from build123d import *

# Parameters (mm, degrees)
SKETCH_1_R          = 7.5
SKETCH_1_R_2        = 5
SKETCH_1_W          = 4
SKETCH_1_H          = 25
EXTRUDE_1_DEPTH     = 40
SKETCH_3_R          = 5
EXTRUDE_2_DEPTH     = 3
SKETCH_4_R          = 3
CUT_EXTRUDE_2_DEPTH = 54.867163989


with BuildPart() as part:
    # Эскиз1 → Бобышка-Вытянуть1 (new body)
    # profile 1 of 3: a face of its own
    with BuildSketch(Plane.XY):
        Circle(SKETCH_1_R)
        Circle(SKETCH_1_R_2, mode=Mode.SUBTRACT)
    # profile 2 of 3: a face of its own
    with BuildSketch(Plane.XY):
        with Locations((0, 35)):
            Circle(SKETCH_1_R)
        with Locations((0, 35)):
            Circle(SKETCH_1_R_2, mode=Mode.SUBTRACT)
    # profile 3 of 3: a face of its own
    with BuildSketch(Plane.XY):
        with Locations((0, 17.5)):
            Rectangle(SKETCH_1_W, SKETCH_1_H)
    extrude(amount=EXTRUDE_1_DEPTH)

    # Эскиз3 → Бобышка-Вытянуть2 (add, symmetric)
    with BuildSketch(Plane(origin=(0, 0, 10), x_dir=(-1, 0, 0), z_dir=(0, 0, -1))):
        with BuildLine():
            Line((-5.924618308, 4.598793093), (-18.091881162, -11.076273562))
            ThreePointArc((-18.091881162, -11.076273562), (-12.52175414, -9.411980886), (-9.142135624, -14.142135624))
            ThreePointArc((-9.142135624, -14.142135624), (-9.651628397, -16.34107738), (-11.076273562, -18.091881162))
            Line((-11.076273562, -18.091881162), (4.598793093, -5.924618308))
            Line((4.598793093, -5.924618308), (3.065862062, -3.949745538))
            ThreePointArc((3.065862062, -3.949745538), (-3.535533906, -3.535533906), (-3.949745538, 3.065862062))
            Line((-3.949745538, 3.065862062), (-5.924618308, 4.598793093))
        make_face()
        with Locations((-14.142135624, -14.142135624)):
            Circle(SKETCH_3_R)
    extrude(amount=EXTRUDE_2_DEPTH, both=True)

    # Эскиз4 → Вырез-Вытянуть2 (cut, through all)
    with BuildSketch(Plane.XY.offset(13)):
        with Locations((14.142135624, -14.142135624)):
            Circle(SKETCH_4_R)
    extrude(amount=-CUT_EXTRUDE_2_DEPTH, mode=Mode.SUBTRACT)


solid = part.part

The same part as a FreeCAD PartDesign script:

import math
import FreeCAD as App
import Part
import Sketcher

V = App.Vector
Q = App.Units.Quantity

doc = App.newDocument("Part")
body = doc.addObject("PartDesign::Body", "Body")

sketch1 = body.newObject("Sketcher::SketchObject", "Sketch")
sketch1.AttachmentSupport = (doc.getObject("XY_Plane"), [""])
sketch1.MapMode = "FlatFace"
sketch1.addGeometry([
    Part.ArcOfCircle(Part.Circle(V(0, 0, 0), V(0, 0, 1), 7.5), math.radians(105.46601), math.radians(434.53399)),
    Part.LineSegment(V(2, 7.228416, 0), V(2, 27.771584, 0)),
    Part.ArcOfCircle(Part.Circle(V(0, 35, 0), V(0, 0, 1), 7.5), math.radians(-74.53399), math.radians(254.53399)),
    Part.LineSegment(V(-2, 27.771584, 0), V(-2, 7.228416, 0)),
    Part.Circle(V(0, 0, 0), V(0, 0, 1), 5),
    Part.Circle(V(0, 35, 0), V(0, 0, 1), 5),
], False)
sketch1.addConstraint([
    Sketcher.Constraint("Coincident", 0, 2, 1, 1),
    Sketcher.Constraint("Coincident", 1, 2, 2, 1),
    Sketcher.Constraint("Coincident", 2, 2, 3, 1),
    Sketcher.Constraint("Coincident", 3, 2, 0, 1),
    Sketcher.Constraint("Vertical", 1),
    Sketcher.Constraint("Vertical", 3),
    Sketcher.Constraint("Coincident", 0, 3, -1, 1),
    Sketcher.Constraint("Coincident", 4, 3, -1, 1),
    Sketcher.Constraint("Coincident", 5, 3, 2, 3),
    Sketcher.Constraint("Equal", 0, 2),
    Sketcher.Constraint("Equal", 4, 5),
    Sketcher.Constraint("Symmetric", 1, 2, 2, 2, -2),
    Sketcher.Constraint("Diameter", 4, Q("10 mm")),
    Sketcher.Constraint("Radius", 0, Q("7.5 mm")),
    Sketcher.Constraint("DistanceY", -1, 1, 2, 3, Q("35 mm")),
    Sketcher.Constraint("DistanceX", -1, 1, 0, 2, Q("2 mm")),
])
pad1 = body.newObject("PartDesign::Pad", "Pad")
pad1.Profile = sketch1
pad1.Length = 40

sketch2 = body.newObject("Sketcher::SketchObject", "Sketch001")
sketch2.AttachmentSupport = (doc.getObject("XY_Plane"), [""])
sketch2.MapMode = "FlatFace"
sketch2.AttachmentOffset = App.Placement(V(0, 0, 10), App.Rotation())
sketch2.addGeometry([
    Part.LineSegment(V(5.924618, 4.598793, 0), V(18.091881, -11.076274, 0)),
    Part.ArcOfCircle(Part.Circle(V(14.142136, -14.142136, 0), V(0, 0, 1), 5), math.radians(-127.819244), math.radians(37.819244)),
    Part.LineSegment(V(11.076274, -18.091881, 0), V(-4.598793, -5.924618, 0)),
    Part.LineSegment(V(-4.598793, -5.924618, 0), V(-3.065862, -3.949746, 0)),
    Part.ArcOfCircle(Part.Circle(V(0, 0, 0), V(0, 0, 1), 5), math.radians(-127.819244), math.radians(37.819244)),
    Part.LineSegment(V(3.949746, 3.065862, 0), V(5.924618, 4.598793, 0)),
], False)
sketch2.addConstraint([
    Sketcher.Constraint("Tangent", 0, 2, 1, 2),
    Sketcher.Constraint("Tangent", 1, 1, 2, 1),
    Sketcher.Constraint("Coincident", 2, 2, 3, 1),
    Sketcher.Constraint("Coincident", 3, 2, 4, 1),
    Sketcher.Constraint("Coincident", 4, 2, 5, 1),
    Sketcher.Constraint("Coincident", 5, 2, 0, 1),
    Sketcher.Constraint("Coincident", 4, 3, -1, 1),
    Sketcher.Constraint("Equal", 1, 4),
    Sketcher.Constraint("Perpendicular", 2, 3),
    Sketcher.Constraint("Perpendicular", 0, 5),
    Sketcher.Constraint("Equal", 0, 2),
    Sketcher.Constraint("Equal", 3, 5),
    Sketcher.Constraint("Radius", 1, Q("5 mm")),
    Sketcher.Constraint("Distance", 3, Q("2.5 mm")),
    Sketcher.Constraint("DistanceX", -1, 1, 0, 2, Q("18.091881 mm")),
    Sketcher.Constraint("DistanceY", 1, 1, -1, 1, Q("18.091881 mm")),
    Sketcher.Constraint("DistanceY", 2, 2, -1, 1, Q("5.924618 mm")),
])
pad2 = body.newObject("PartDesign::Pad", "Pad001")
pad2.Profile = sketch2
pad2.Length = 6
pad2.Midplane = True

sketch3 = body.newObject("Sketcher::SketchObject", "Sketch002")
sketch3.AttachmentSupport = (doc.getObject("XY_Plane"), [""])
sketch3.MapMode = "FlatFace"
sketch3.AttachmentOffset = App.Placement(V(0, 0, 13), App.Rotation())
sketch3.addGeometry(Part.Circle(V(14.142136, -14.142136, 0), V(0, 0, 1), 3), False)
sketch3.addConstraint([
    Sketcher.Constraint("Diameter", 0, Q("6 mm")),
    Sketcher.Constraint("DistanceX", -1, 1, 0, 3, Q("14.142136 mm")),
    Sketcher.Constraint("DistanceY", 0, 3, -1, 1, Q("14.142136 mm")),
])
pocket1 = body.newObject("PartDesign::Pocket", "Pocket")
pocket1.Profile = sketch3
pocket1.Type = "ThroughAll"

doc.recompute()
